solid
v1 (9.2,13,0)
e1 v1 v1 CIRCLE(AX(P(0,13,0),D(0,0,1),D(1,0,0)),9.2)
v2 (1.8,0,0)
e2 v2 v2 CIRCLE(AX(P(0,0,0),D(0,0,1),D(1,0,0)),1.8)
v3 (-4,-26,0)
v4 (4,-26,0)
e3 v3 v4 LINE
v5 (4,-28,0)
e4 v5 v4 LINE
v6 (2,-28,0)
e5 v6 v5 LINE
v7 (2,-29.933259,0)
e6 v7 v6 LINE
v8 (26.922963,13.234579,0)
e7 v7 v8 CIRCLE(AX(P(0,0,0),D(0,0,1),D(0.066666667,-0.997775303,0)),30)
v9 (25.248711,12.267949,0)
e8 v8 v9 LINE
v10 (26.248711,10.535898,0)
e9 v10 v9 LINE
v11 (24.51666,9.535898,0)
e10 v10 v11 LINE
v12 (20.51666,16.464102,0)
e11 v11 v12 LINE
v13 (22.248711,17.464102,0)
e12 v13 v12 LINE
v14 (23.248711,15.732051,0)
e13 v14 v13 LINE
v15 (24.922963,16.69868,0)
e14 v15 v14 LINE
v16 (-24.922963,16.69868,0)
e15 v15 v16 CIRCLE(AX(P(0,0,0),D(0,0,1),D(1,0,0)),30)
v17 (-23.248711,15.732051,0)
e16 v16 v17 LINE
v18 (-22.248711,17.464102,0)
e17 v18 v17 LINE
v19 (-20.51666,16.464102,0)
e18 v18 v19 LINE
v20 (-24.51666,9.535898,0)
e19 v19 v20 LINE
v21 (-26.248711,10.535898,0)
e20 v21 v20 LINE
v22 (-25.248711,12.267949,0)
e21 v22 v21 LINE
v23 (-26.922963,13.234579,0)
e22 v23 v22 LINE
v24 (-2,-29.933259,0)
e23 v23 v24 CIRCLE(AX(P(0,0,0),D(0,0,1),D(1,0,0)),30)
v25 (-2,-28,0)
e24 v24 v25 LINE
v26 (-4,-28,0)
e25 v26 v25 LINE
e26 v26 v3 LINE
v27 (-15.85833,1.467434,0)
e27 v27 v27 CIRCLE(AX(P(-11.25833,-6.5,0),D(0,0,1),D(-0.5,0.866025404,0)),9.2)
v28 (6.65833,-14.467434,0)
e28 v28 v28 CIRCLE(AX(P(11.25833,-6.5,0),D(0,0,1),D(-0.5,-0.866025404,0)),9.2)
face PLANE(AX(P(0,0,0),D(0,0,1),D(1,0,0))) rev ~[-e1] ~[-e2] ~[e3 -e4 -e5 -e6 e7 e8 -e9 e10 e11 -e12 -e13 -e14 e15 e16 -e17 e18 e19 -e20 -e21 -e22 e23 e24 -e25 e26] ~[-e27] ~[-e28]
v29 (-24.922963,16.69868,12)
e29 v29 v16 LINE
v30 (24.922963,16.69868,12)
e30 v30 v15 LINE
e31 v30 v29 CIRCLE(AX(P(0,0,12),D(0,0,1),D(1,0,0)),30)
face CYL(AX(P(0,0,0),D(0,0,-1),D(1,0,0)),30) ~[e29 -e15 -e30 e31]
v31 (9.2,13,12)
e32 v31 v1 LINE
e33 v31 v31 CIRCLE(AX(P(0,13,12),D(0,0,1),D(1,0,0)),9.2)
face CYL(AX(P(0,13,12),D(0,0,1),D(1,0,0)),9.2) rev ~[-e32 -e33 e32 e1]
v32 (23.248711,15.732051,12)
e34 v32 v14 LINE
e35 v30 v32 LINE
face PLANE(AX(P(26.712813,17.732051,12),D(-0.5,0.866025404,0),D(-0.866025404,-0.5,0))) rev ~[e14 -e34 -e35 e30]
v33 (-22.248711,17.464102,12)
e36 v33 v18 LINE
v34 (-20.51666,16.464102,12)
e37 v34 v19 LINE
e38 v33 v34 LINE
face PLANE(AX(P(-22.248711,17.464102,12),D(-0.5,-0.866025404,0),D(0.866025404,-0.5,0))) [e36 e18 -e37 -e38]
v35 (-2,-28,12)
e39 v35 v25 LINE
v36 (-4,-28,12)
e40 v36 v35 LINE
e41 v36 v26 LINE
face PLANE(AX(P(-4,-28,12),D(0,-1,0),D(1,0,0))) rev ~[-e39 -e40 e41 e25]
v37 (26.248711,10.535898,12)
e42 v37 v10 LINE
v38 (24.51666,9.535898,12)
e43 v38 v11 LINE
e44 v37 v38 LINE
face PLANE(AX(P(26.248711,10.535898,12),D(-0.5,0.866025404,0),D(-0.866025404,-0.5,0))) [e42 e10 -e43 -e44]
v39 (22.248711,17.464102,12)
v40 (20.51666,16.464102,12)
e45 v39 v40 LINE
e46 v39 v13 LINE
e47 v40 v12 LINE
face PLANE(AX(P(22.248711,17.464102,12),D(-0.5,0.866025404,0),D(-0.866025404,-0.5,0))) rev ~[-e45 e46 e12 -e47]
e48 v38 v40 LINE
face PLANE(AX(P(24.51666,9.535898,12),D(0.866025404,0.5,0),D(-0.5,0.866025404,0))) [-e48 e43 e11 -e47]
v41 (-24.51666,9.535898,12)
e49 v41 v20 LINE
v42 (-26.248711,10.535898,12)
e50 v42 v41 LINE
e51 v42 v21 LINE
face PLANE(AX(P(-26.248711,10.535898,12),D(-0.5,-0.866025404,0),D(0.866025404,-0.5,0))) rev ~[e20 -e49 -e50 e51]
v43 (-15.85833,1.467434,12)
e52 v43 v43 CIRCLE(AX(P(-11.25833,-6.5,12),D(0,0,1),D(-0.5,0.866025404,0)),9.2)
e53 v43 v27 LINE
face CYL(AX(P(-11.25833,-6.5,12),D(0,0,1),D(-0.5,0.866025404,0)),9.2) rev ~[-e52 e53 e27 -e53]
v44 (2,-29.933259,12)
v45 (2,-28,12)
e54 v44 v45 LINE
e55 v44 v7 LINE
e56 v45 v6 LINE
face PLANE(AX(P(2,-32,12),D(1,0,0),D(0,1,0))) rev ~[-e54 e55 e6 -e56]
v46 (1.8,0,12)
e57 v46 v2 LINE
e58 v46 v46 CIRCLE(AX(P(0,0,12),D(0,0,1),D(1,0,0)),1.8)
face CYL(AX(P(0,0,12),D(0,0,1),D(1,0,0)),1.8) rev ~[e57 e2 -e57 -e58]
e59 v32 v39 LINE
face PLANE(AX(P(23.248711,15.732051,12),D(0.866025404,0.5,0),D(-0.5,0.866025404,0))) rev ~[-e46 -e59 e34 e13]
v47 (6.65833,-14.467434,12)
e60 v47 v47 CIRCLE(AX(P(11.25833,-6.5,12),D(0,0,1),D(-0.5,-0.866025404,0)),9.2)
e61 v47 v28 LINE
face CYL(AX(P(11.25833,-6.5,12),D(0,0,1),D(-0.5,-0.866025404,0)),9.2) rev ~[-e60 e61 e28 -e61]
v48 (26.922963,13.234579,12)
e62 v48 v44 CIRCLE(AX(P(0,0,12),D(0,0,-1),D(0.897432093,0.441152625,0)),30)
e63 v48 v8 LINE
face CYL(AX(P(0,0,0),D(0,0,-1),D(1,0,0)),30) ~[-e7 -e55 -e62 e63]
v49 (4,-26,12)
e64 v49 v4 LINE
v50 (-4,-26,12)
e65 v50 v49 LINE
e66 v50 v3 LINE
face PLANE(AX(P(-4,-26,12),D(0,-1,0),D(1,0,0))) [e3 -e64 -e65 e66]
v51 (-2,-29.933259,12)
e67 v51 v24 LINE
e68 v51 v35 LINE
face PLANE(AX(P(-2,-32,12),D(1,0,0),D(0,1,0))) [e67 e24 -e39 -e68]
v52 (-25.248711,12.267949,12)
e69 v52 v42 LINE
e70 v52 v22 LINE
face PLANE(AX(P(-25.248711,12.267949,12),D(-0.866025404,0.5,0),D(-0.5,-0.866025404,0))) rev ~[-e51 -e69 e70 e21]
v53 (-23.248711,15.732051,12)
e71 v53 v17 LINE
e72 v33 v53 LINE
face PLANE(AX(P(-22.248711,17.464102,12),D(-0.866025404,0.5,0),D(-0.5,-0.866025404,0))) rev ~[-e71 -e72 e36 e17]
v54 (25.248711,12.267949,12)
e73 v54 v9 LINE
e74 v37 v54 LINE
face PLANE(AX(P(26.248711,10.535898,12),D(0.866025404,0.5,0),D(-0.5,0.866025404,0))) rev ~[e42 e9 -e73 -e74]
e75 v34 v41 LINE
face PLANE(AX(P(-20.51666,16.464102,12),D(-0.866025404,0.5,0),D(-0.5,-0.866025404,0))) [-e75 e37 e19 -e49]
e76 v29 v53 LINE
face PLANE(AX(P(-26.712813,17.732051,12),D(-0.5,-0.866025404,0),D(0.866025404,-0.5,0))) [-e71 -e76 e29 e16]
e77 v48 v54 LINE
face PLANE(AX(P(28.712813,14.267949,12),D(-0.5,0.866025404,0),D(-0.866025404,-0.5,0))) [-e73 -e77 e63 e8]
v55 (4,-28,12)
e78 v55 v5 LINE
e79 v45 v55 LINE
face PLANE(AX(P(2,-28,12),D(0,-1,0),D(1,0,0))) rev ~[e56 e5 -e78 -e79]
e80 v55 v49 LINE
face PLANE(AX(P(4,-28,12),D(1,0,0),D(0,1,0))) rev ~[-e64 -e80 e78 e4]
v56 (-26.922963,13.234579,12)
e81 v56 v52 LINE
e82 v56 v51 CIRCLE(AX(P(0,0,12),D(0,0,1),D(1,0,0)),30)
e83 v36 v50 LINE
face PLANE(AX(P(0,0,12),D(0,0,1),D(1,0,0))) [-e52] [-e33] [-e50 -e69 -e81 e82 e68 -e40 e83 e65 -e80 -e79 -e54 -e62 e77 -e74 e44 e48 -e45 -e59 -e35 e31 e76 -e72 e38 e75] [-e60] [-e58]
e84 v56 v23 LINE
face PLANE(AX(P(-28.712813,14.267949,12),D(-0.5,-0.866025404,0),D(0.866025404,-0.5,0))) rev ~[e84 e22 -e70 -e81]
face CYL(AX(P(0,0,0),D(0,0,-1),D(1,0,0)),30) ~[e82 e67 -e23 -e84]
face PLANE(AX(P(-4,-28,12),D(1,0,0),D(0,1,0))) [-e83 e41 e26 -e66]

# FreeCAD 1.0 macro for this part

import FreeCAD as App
import Part
import Sketcher

V = App.Vector


def add_polygon(sketch, points):
    """Adds a closed chain of lines whose ends are joined by coincident constraints."""
    first, n = sketch.GeometryCount, len(points)
    for a, b in zip(points, points[1:] + points[:1]):
        sketch.addGeometry(Part.LineSegment(App.Vector(*a, 0), App.Vector(*b, 0)), False)
    for i in range(n):
        sketch.addConstraint(Sketcher.Constraint("Coincident", first + i, 2, first + (i + 1) % n, 1))

doc = App.newDocument("Part")
body = doc.addObject("PartDesign::Body", "Body")

# Sketch on XY plane
sketch1 = body.newObject("Sketcher::SketchObject", "Sketch")
sketch1.AttachmentSupport = (doc.getObject("XY_Plane"), [""])
sketch1.MapMode = "FlatFace"
sketch1.addGeometry(Part.Circle(V(0, 0, 0), V(0, 0, 1), 30), False)
sketch1.addConstraint(Sketcher.Constraint("Coincident", 0, 3, -1, 1))
sketch1.addConstraint(Sketcher.Constraint("Diameter", 0, 60.0))
pad1 = body.newObject("PartDesign::Pad", "Pad")
pad1.Profile = sketch1
pad1.Length = 12

# Sketch on XY plane
sketch2 = body.newObject("Sketcher::SketchObject", "Sketch001")
sketch2.AttachmentSupport = (doc.getObject("XY_Plane"), [""])
sketch2.MapMode = "FlatFace"
sketch2.AttachmentOffset = App.Placement(V(0, 0, 12), App.Rotation())
sketch2.addGeometry(Part.Circle(V(0, 13, 0), V(0, 0, 1), 9), False)
sketch2.addConstraint(Sketcher.Constraint("PointOnObject", 0, 3, -2))
sketch2.addConstraint(Sketcher.Constraint("Diameter", 0, 18.4))
sketch2.addConstraint(Sketcher.Constraint("DistanceY", -1, 1, 0, 3, 13.0))
pocket1 = body.newObject("PartDesign::Pocket", "Pocket")
pocket1.Profile = sketch2
pocket1.Type = "ThroughAll"
doc.recompute()

polarpattern = body.newObject("PartDesign::PolarPattern", "PolarPattern")
polarpattern.Originals = [pocket1]
polarpattern.Axis = (doc.getObject("Z_Axis"), [""])
polarpattern.Angle = 360
polarpattern.Occurrences = 3
body.Tip = polarpattern

# Sketch on XY plane
sketch3 = body.newObject("Sketcher::SketchObject", "Sketch002")
sketch3.AttachmentSupport = (doc.getObject("XY_Plane"), [""])
sketch3.MapMode = "FlatFace"
sketch3.AttachmentOffset = App.Placement(V(0, 0, 12), App.Rotation())
sketch3.addGeometry(Part.Circle(V(0, 0, 0), V(0, 0, 1), 1.8), False)
sketch3.addConstraint(Sketcher.Constraint("Coincident", 0, 3, -1, 1))
sketch3.addConstraint(Sketcher.Constraint("Diameter", 0, 3.6))
pocket2 = body.newObject("PartDesign::Pocket", "Pocket001")
pocket2.Profile = sketch3
pocket2.Type = "ThroughAll"

# Sketch on XY plane
sketch4 = body.newObject("Sketcher::SketchObject", "Sketch003")
sketch4.AttachmentSupport = (doc.getObject("XY_Plane"), [""])
sketch4.MapMode = "FlatFace"
sketch4.AttachmentOffset = App.Placement(V(0, 0, 12), App.Rotation())
add_polygon(sketch4, [(-2, -28), (-2, -32), (2, -32), (2, -28), (4, -28), (4, -26), (-4, -26), (-4, -28)])  # lines 0-7
sketch4.addConstraint(Sketcher.Constraint("Vertical", 0))
sketch4.addConstraint(Sketcher.Constraint("Horizontal", 1))
sketch4.addConstraint(Sketcher.Constraint("Vertical", 2))
sketch4.addConstraint(Sketcher.Constraint("Horizontal", 3))
sketch4.addConstraint(Sketcher.Constraint("Vertical", 4))
sketch4.addConstraint(Sketcher.Constraint("Horizontal", 5))
sketch4.addConstraint(Sketcher.Constraint("Vertical", 6))
sketch4.addConstraint(Sketcher.Constraint("Horizontal", 7))
sketch4.addConstraint(Sketcher.Constraint("Symmetric", 3, 2, 6, 2, -2))
sketch4.addConstraint(Sketcher.Constraint("Equal", 3, 7))
sketch4.addConstraint(Sketcher.Constraint("Equal", 1, 0))
sketch4.addConstraint(Sketcher.Constraint("Equal", 7, 4))
sketch4.addConstraint(Sketcher.Constraint("DistanceX", 1, 1, 1, 2, 4.0))
sketch4.addConstraint(Sketcher.Constraint("DistanceX", 3, 1, 3, 2, 2.0))
sketch4.addConstraint(Sketcher.Constraint("DistanceY", 0, 2, -1, 1, 32.0))
pocket3 = body.newObject("PartDesign::Pocket", "Pocket002")
pocket3.Profile = sketch4
pocket3.Type = "ThroughAll"
doc.recompute()

polarpattern2 = body.newObject("PartDesign::PolarPattern", "PolarPattern001")
polarpattern2.Originals = [pocket3]
polarpattern2.Axis = (doc.getObject("Z_Axis"), [""])
polarpattern2.Angle = 360
polarpattern2.Occurrences = 3
body.Tip = polarpattern2

doc.recompute()
